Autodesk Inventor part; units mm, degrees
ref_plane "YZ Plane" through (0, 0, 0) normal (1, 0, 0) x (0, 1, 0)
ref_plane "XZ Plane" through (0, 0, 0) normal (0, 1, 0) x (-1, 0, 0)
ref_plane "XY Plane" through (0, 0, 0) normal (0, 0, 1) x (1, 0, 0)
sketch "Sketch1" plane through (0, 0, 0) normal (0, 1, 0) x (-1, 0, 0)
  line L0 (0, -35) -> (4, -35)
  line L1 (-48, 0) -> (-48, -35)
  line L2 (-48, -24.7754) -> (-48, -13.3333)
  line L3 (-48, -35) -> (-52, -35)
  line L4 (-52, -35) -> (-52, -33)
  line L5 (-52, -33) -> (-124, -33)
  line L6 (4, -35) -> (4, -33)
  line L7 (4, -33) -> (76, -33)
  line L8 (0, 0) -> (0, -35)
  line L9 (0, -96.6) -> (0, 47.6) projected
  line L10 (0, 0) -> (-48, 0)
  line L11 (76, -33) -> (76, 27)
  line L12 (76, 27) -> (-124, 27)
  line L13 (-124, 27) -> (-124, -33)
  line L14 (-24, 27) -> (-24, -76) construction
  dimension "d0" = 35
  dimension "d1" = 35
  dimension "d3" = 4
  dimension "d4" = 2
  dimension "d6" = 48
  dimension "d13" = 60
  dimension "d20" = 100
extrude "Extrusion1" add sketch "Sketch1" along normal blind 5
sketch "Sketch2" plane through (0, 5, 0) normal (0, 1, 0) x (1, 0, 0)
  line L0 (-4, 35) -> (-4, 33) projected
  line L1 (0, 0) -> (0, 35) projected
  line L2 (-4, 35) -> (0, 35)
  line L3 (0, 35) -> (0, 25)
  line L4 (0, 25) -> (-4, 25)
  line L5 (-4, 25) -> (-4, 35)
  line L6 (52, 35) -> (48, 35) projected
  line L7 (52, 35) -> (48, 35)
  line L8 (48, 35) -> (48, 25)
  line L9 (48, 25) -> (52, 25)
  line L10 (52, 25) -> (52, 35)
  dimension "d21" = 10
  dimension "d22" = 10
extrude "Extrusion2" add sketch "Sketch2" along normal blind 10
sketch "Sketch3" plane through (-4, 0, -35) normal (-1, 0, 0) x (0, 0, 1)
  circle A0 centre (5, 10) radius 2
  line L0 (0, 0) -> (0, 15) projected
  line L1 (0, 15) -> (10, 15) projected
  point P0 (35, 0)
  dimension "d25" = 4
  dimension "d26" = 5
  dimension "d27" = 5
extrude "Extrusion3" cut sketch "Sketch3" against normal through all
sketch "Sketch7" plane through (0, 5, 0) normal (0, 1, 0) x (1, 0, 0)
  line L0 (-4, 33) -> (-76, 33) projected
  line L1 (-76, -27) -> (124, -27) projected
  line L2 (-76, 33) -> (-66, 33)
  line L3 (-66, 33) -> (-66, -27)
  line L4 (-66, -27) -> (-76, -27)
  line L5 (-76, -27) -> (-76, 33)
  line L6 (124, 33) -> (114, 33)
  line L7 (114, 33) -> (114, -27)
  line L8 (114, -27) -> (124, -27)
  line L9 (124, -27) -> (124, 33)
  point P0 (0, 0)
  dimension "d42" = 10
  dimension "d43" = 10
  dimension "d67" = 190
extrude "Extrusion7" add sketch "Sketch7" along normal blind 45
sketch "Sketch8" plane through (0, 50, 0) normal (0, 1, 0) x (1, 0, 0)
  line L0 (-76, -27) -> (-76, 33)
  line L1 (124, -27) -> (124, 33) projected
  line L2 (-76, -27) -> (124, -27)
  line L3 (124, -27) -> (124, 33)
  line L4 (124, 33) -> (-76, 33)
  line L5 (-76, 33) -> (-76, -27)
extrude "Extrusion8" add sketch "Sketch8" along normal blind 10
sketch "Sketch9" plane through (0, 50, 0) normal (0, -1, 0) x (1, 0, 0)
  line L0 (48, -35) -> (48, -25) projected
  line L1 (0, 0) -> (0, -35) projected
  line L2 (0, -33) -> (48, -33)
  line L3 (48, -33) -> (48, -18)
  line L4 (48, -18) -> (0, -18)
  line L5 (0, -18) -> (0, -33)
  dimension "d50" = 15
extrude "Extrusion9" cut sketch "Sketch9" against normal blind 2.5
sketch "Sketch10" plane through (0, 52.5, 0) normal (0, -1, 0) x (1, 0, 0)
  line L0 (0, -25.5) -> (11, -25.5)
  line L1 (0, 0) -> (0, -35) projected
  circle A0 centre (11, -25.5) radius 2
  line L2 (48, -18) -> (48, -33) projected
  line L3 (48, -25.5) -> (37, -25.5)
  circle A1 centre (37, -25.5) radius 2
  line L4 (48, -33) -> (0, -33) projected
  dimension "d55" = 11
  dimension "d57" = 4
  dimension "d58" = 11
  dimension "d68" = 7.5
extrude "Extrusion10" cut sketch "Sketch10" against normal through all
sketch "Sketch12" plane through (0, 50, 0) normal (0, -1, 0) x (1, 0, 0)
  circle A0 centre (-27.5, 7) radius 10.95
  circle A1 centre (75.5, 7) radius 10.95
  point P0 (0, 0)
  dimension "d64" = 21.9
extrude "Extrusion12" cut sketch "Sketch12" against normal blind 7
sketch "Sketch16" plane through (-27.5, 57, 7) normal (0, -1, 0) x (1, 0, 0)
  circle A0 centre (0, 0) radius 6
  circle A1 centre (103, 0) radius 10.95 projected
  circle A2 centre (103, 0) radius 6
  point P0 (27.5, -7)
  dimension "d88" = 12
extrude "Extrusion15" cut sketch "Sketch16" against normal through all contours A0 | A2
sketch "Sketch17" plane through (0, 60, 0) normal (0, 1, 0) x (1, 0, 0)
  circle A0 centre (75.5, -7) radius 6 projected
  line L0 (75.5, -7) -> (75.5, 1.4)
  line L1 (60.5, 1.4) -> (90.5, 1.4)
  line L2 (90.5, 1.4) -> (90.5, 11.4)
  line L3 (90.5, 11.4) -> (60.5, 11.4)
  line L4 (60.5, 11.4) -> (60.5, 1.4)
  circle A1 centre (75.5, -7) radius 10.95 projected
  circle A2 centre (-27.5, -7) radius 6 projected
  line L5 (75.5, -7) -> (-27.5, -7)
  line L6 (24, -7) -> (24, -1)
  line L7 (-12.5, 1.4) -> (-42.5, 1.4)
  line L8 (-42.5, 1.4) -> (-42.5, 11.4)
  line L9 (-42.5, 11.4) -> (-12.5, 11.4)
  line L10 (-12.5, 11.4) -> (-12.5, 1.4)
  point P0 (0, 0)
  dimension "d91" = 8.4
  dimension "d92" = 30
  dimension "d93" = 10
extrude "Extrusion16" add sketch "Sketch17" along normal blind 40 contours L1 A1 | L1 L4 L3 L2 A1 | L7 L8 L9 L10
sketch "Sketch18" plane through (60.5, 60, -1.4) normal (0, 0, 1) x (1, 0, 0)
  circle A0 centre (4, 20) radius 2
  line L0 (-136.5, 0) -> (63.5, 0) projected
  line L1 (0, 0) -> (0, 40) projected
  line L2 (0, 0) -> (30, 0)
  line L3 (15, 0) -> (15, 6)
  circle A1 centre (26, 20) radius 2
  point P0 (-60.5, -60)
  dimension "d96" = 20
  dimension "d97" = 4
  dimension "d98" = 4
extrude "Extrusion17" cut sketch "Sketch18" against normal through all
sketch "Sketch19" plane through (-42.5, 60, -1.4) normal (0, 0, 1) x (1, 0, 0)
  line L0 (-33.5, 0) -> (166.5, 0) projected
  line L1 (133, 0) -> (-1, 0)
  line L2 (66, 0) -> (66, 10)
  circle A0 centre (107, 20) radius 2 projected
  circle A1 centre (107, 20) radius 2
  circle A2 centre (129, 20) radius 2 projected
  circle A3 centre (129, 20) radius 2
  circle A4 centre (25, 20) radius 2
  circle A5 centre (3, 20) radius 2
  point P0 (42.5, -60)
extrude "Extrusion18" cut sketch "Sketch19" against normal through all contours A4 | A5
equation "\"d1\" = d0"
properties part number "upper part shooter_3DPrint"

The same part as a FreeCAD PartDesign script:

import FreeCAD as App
import Part
import Sketcher
from FreeCAD import Vector


def add_polygon(sketch, points):
    """Adds a closed chain of lines whose ends are joined by coincident constraints."""
    first, n = sketch.GeometryCount, len(points)
    for a, b in zip(points, points[1:] + points[:1]):
        sketch.addGeometry(Part.LineSegment(App.Vector(*a, 0), App.Vector(*b, 0)), False)
    for i in range(n):
        sketch.addConstraint(Sketcher.Constraint("Coincident", first + i, 2, first + (i + 1) % n, 1))

doc = App.newDocument("Part")
body = doc.addObject("PartDesign::Body", "Body")

# Sketch on XZ plane
sketch1 = doc.addObject("Sketcher::SketchObject", "Sketch")
body.addObject(sketch1)
sketch1.AttachmentSupport = (doc.XZ_Plane, [""])
sketch1.MapMode = "FlatFace"
add_polygon(sketch1, [(0, 0), (0, -35), (-4, -35), (-4, -33), (-76, -33), (-76, 27), (124, 27), (124, -33), (52, -33), (52, -35), (48, -35), (48, 0)])  # lines 0-11
sketch1.addConstraint(Sketcher.Constraint("Vertical", 0))
sketch1.addConstraint(Sketcher.Constraint("Horizontal", 1))
sketch1.addConstraint(Sketcher.Constraint("Vertical", 2))
sketch1.addConstraint(Sketcher.Constraint("Horizontal", 3))
sketch1.addConstraint(Sketcher.Constraint("Vertical", 4))
sketch1.addConstraint(Sketcher.Constraint("Horizontal", 5))
sketch1.addConstraint(Sketcher.Constraint("Vertical", 6))
sketch1.addConstraint(Sketcher.Constraint("Horizontal", 7))
sketch1.addConstraint(Sketcher.Constraint("Vertical", 8))
sketch1.addConstraint(Sketcher.Constraint("Horizontal", 9))
sketch1.addConstraint(Sketcher.Constraint("Vertical", 10))
sketch1.addConstraint(Sketcher.Constraint("Horizontal", 11))
sketch1.addConstraint(Sketcher.Constraint("Coincident", 11, 2, -1, 1))
sketch1.addConstraint(Sketcher.Constraint("Horizontal", 3, 2, 6, 2))
sketch1.addConstraint(Sketcher.Constraint("Horizontal", 1, 2, 8, 2))
sketch1.addConstraint(Sketcher.Constraint("Equal", 3, 7))
sketch1.addConstraint(Sketcher.Constraint("Equal", 1, 9))
sketch1.addConstraint(Sketcher.Constraint("DistanceX", 1, 2, 1, 1, 4.0))
sketch1.addConstraint(Sketcher.Constraint("DistanceX", 11, 2, 11, 1, 48.0))
sketch1.addConstraint(Sketcher.Constraint("DistanceY", 0, 2, 0, 1, 35.0))
sketch1.addConstraint(Sketcher.Constraint("DistanceY", 2, 1, 2, 2, 2.0))
sketch1.addConstraint(Sketcher.Constraint("DistanceY", 4, 1, 4, 2, 60.0))
sketch1.addConstraint(Sketcher.Constraint("DistanceX", 3, 2, 3, 1, 72.0))
pad1 = doc.addObject("PartDesign::Pad", "Pad")
body.addObject(pad1)
pad1.Profile = sketch1
pad1.Length = 5
pad1.Reversed = True

# Sketch on XZ plane
sketch2 = doc.addObject("Sketcher::SketchObject", "Sketch001")
body.addObject(sketch2)
sketch2.AttachmentSupport = (doc.XZ_Plane, [""])
sketch2.MapMode = "FlatFace"
sketch2.AttachmentOffset = App.Placement(Vector(0, 0, -5), App.Rotation())
add_polygon(sketch2, [(0, -35), (-4, -35), (-4, -25), (0, -25)])  # lines 0-3
add_polygon(sketch2, [(52, -25), (52, -35), (48, -35), (48, -25)])  # lines 4-7
sketch2.addConstraint(Sketcher.Constraint("Horizontal", 0))
sketch2.addConstraint(Sketcher.Constraint("Vertical", 1))
sketch2.addConstraint(Sketcher.Constraint("Horizontal", 2))
sketch2.addConstraint(Sketcher.Constraint("Vertical", 3))
sketch2.addConstraint(Sketcher.Constraint("Vertical", 4))
sketch2.addConstraint(Sketcher.Constraint("Horizontal", 5))
sketch2.addConstraint(Sketcher.Constraint("Vertical", 6))
sketch2.addConstraint(Sketcher.Constraint("Horizontal", 7))
sketch2.addConstraint(Sketcher.Constraint("PointOnObject", 2, 2, -2))
sketch2.addConstraint(Sketcher.Constraint("Horizontal", 3, 2, 4, 2))
sketch2.addConstraint(Sketcher.Constraint("Horizontal", 2, 2, 6, 2))
sketch2.addConstraint(Sketcher.Constraint("Equal", 2, 5))
sketch2.addConstraint(Sketcher.Constraint("DistanceY", 1, 1, 1, 2, 10.0))
sketch2.addConstraint(Sketcher.Constraint("DistanceX", 0, 2, 0, 1, 4.0))
sketch2.addConstraint(Sketcher.Constraint("DistanceY", 0, 2, -1, 1, 35.0))
sketch2.addConstraint(Sketcher.Constraint("DistanceX", -1, 1, 4, 2, 52.0))
pad2 = doc.addObject("PartDesign::Pad", "Pad001")
body.addObject(pad2)
pad2.Profile = sketch2
pad2.Length = 10
pad2.Reversed = True

# Sketch on YZ plane
sketch3 = doc.addObject("Sketcher::SketchObject", "Sketch002")
body.addObject(sketch3)
sketch3.AttachmentSupport = (doc.YZ_Plane, [""])
sketch3.MapMode = "FlatFace"
sketch3.AttachmentOffset = App.Placement(Vector(0, 0, -4), App.Rotation())
sketch3.addGeometry(Part.Circle(Vector(10, -30, 0), Vector(0, 0, 1), 2), False)
sketch3.addConstraint(Sketcher.Constraint("Diameter", 0, 4.0))
sketch3.addConstraint(Sketcher.Constraint("DistanceX", -1, 1, 0, 3, 10.0))
sketch3.addConstraint(Sketcher.Constraint("DistanceY", 0, 3, -1, 1, 30.0))
pocket1 = doc.addObject("PartDesign::Pocket", "Pocket")
body.addObject(pocket1)
pocket1.Profile = sketch3
pocket1.Type = "ThroughAll"
pocket1.Reversed = True

# Sketch on XZ plane
sketch4 = doc.addObject("Sketcher::SketchObject", "Sketch003")
body.addObject(sketch4)
sketch4.AttachmentSupport = (doc.XZ_Plane, [""])
sketch4.MapMode = "FlatFace"
sketch4.AttachmentOffset = App.Placement(Vector(0, 0, -5), App.Rotation())
add_polygon(sketch4, [(-66, 27), (-66, -33), (-76, -33), (-76, 27)])  # lines 0-3
add_polygon(sketch4, [(114, -33), (114, 27), (124, 27), (124, -33)])  # lines 4-7
sketch4.addConstraint(Sketcher.Constraint("Vertical", 0))
sketch4.addConstraint(Sketcher.Constraint("Horizontal", 1))
sketch4.addConstraint(Sketcher.Constraint("Vertical", 2))
sketch4.addConstraint(Sketcher.Constraint("Horizontal", 3))
sketch4.addConstraint(Sketcher.Constraint("Vertical", 4))
sketch4.addConstraint(Sketcher.Constraint("Horizontal", 5))
sketch4.addConstraint(Sketcher.Constraint("Vertical", 6))
sketch4.addConstraint(Sketcher.Constraint("Horizontal", 7))
sketch4.addConstraint(Sketcher.Constraint("Horizontal", 3, 2, 4, 2))
sketch4.addConstraint(Sketcher.Constraint("Horizontal", 1, 2, 6, 2))
sketch4.addConstraint(Sketcher.Constraint("Equal", 3, 5))
sketch4.addConstraint(Sketcher.Constraint("DistanceX", 1, 2, 1, 1, 10.0))
sketch4.addConstraint(Sketcher.Constraint("DistanceX", 2, 2, 4, 2, 190.0))
sketch4.addConstraint(Sketcher.Constraint("DistanceY", 0, 2, 0, 1, 60.0))
sketch4.addConstraint(Sketcher.Constraint("DistanceX", 0, 2, -1, 1, 66.0))
sketch4.addConstraint(Sketcher.Constraint("DistanceY", 0, 2, -1, 1, 33.0))
pad3 = doc.addObject("PartDesign::Pad", "Pad002")
body.addObject(pad3)
pad3.Profile = sketch4
pad3.Length = 45
pad3.Reversed = True

# Sketch on XZ plane
sketch5 = doc.addObject("Sketcher::SketchObject", "Sketch004")
body.addObject(sketch5)
sketch5.AttachmentSupport = (doc.XZ_Plane, [""])
sketch5.MapMode = "FlatFace"
sketch5.AttachmentOffset = App.Placement(Vector(0, 0, -50), App.Rotation())
add_polygon(sketch5, [(-76, -33), (-76, 27), (124, 27), (124, -33)])  # lines 0-3
sketch5.addConstraint(Sketcher.Constraint("Vertical", 0))
sketch5.addConstraint(Sketcher.Constraint("Horizontal", 1))
sketch5.addConstraint(Sketcher.Constraint("Vertical", 2))
sketch5.addConstraint(Sketcher.Constraint("Horizontal", 3))
sketch5.addConstraint(Sketcher.Constraint("DistanceX", 1, 1, 1, 2, 200.0))
sketch5.addConstraint(Sketcher.Constraint("DistanceY", 0, 1, 0, 2, 60.0))
sketch5.addConstraint(Sketcher.Constraint("DistanceX", 0, 2, -1, 1, 76.0))
sketch5.addConstraint(Sketcher.Constraint("DistanceY", -1, 1, 0, 2, 27.0))
pad4 = doc.addObject("PartDesign::Pad", "Pad003")
body.addObject(pad4)
pad4.Profile = sketch5
pad4.Length = 10
pad4.Reversed = True

# Sketch on XZ plane
sketch6 = doc.addObject("Sketcher::SketchObject", "Sketch005")
body.addObject(sketch6)
sketch6.AttachmentSupport = (doc.XZ_Plane, [""])
sketch6.MapMode = "FlatFace"
sketch6.AttachmentOffset = App.Placement(Vector(0, 0, -50), App.Rotation())
add_polygon(sketch6, [(0, -33), (48, -33), (48, -18), (0, -18)])  # lines 0-3
sketch6.addConstraint(Sketcher.Constraint("Horizontal", 0))
sketch6.addConstraint(Sketcher.Constraint("Vertical", 1))
sketch6.addConstraint(Sketcher.Constraint("Horizontal", 2))
sketch6.addConstraint(Sketcher.Constraint("Vertical", 3))
sketch6.addConstraint(Sketcher.Constraint("PointOnObject", 2, 2, -2))
sketch6.addConstraint(Sketcher.Constraint("DistanceY", 1, 1, 1, 2, 15.0))
sketch6.addConstraint(Sketcher.Constraint("DistanceX", 0, 1, 0, 2, 48.0))
sketch6.addConstraint(Sketcher.Constraint("DistanceY", 0, 2, -1, 1, 33.0))
pocket2 = doc.addObject("PartDesign::Pocket", "Pocket001")
body.addObject(pocket2)
pocket2.Profile = sketch6
pocket2.Length = 2.5

# Sketch on XZ plane
sketch7 = doc.addObject("Sketcher::SketchObject", "Sketch006")
body.addObject(sketch7)
sketch7.AttachmentSupport = (doc.XZ_Plane, [""])
sketch7.MapMode = "FlatFace"
sketch7.AttachmentOffset = App.Placement(Vector(0, 0, -52.5), App.Rotation())
sketch7.addGeometry(Part.Circle(Vector(11, -25.5, 0), Vector(0, 0, 1), 2), False)
sketch7.addGeometry(Part.Circle(Vector(37, -25.5, 0), Vector(0, 0, 1), 2), False)
sketch7.addConstraint(Sketcher.Constraint("Equal", 0, 1))
sketch7.addConstraint(Sketcher.Constraint("Horizontal", 0, 3, 1, 3))
sketch7.addConstraint(Sketcher.Constraint("Diameter", 0, 4.0))
sketch7.addConstraint(Sketcher.Constraint("DistanceX", -1, 1, 0, 3, 11.0))
sketch7.addConstraint(Sketcher.Constraint("DistanceX", -1, 1, 1, 3, 37.0))
sketch7.addConstraint(Sketcher.Constraint("DistanceY", 0, 3, -1, 1, 25.5))
pocket3 = doc.addObject("PartDesign::Pocket", "Pocket002")
body.addObject(pocket3)
pocket3.Profile = sketch7
pocket3.Type = "ThroughAll"

# Sketch on XZ plane
sketch8 = doc.addObject("Sketcher::SketchObject", "Sketch007")
body.addObject(sketch8)
sketch8.AttachmentSupport = (doc.XZ_Plane, [""])
sketch8.MapMode = "FlatFace"
sketch8.AttachmentOffset = App.Placement(Vector(0, 0, -50), App.Rotation())
sketch8.addGeometry(Part.Circle(Vector(-27.5, 7, 0), Vector(0, 0, 1), 10.95), False)
sketch8.addGeometry(Part.Circle(Vector(75.5, 7, 0), Vector(0, 0, 1), 10.95), False)
sketch8.addConstraint(Sketcher.Constraint("Equal", 0, 1))
sketch8.addConstraint(Sketcher.Constraint("Horizontal", 0, 3, 1, 3))
sketch8.addConstraint(Sketcher.Constraint("Diameter", 0, 21.9))
sketch8.addConstraint(Sketcher.Constraint("DistanceY", -1, 1, 0, 3, 7.0))
sketch8.addConstraint(Sketcher.Constraint("DistanceX", 0, 3, 1, 3, 103.0))
sketch8.addConstraint(Sketcher.Constraint("DistanceX", 0, 3, -1, 1, 27.5))
pocket4 = doc.addObject("PartDesign::Pocket", "Pocket003")
body.addObject(pocket4)
pocket4.Profile = sketch8
pocket4.Length = 7

# Sketch on XZ plane
sketch9 = doc.addObject("Sketcher::SketchObject", "Sketch008")
body.addObject(sketch9)
sketch9.AttachmentSupport = (doc.XZ_Plane, [""])
sketch9.MapMode = "FlatFace"
sketch9.AttachmentOffset = App.Placement(Vector(0, 0, -57), App.Rotation())
sketch9.addGeometry(Part.Circle(Vector(-27.5, 7, 0), Vector(0, 0, 1), 6), False)
sketch9.addGeometry(Part.Circle(Vector(75.5, 7, 0), Vector(0, 0, 1), 6), False)
sketch9.addConstraint(Sketcher.Constraint("Equal", 0, 1))
sketch9.addConstraint(Sketcher.Constraint("Horizontal", 0, 3, 1, 3))
sketch9.addConstraint(Sketcher.Constraint("Diameter", 0, 12.0))
sketch9.addConstraint(Sketcher.Constraint("DistanceY", -1, 1, 0, 3, 7.0))
sketch9.addConstraint(Sketcher.Constraint("DistanceX", 0, 3, 1, 3, 103.0))
sketch9.addConstraint(Sketcher.Constraint("DistanceX", 0, 3, -1, 1, 27.5))
pocket5 = doc.addObject("PartDesign::Pocket", "Pocket004")
body.addObject(pocket5)
pocket5.Profile = sketch9
pocket5.Type = "ThroughAll"

# Sketch on XZ plane
sketch10 = doc.addObject("Sketcher::SketchObject", "Sketch009")
body.addObject(sketch10)
sketch10.AttachmentSupport = (doc.XZ_Plane, [""])
sketch10.MapMode = "FlatFace"
sketch10.AttachmentOffset = App.Placement(Vector(0, 0, -60), App.Rotation())
add_polygon(sketch10, [(90.5, -1.4), (90.5, -11.4), (60.5, -11.4), (60.5, -1.4)])  # lines 0-3
add_polygon(sketch10, [(-42.5, -1.4), (-12.5, -1.4), (-12.5, -11.4), (-42.5, -11.4)])  # lines 4-7
sketch10.addConstraint(Sketcher.Constraint("Vertical", 0))
sketch10.addConstraint(Sketcher.Constraint("Horizontal", 1))
sketch10.addConstraint(Sketcher.Constraint("Vertical", 2))
sketch10.addConstraint(Sketcher.Constraint("Horizontal", 3))
sketch10.addConstraint(Sketcher.Constraint("Horizontal", 4))
sketch10.addConstraint(Sketcher.Constraint("Vertical", 5))
sketch10.addConstraint(Sketcher.Constraint("Horizontal", 6))
sketch10.addConstraint(Sketcher.Constraint("Vertical", 7))
sketch10.addConstraint(Sketcher.Constraint("Horizontal", 3, 2, 4, 2))
sketch10.addConstraint(Sketcher.Constraint("Horizontal", 1, 2, 5, 2))
sketch10.addConstraint(Sketcher.Constraint("Equal", 3, 4))
sketch10.addConstraint(Sketcher.Constraint("DistanceX", 1, 2, 1, 1, 30.0))
sketch10.addConstraint(Sketcher.Constraint("DistanceY", 0, 2, 0, 1, 10.0))
sketch10.addConstraint(Sketcher.Constraint("DistanceX", 4, 2, 2, 2, 73.0))
sketch10.addConstraint(Sketcher.Constraint("DistanceX", -1, 1, 0, 2, 90.5))
sketch10.addConstraint(Sketcher.Constraint("DistanceY", 0, 2, -1, 1, 11.4))
pad5 = doc.addObject("PartDesign::Pad", "Pad004")
body.addObject(pad5)
pad5.Profile = sketch10
pad5.Length = 40
pad5.Reversed = True

# Sketch on XY plane
sketch11 = doc.addObject("Sketcher::SketchObject", "Sketch010")
body.addObject(sketch11)
sketch11.AttachmentSupport = (doc.XY_Plane, [""])
sketch11.MapMode = "FlatFace"
sketch11.AttachmentOffset = App.Placement(Vector(0, 0, -1.4), App.Rotation())
sketch11.addGeometry(Part.Circle(Vector(64.5, 80, 0), Vector(0, 0, 1), 2), False)
sketch11.addGeometry(Part.Circle(Vector(86.5, 80, 0), Vector(0, 0, 1), 2), False)
sketch11.addConstraint(Sketcher.Constraint("Equal", 0, 1))
sketch11.addConstraint(Sketcher.Constraint("Horizontal", 0, 3, 1, 3))
sketch11.addConstraint(Sketcher.Constraint("Diameter", 0, 4.0))
sketch11.addConstraint(Sketcher.Constraint("DistanceY", -1, 1, 0, 3, 80.0))
sketch11.addConstraint(Sketcher.Constraint("DistanceX", 0, 3, 1, 3, 22.0))
sketch11.addConstraint(Sketcher.Constraint("DistanceX", -1, 1, 0, 3, 64.5))
pocket6 = doc.addObject("PartDesign::Pocket", "Pocket005")
body.addObject(pocket6)
pocket6.Profile = sketch11
pocket6.Type = "ThroughAll"

# Sketch on XY plane
sketch12 = doc.addObject("Sketcher::SketchObject", "Sketch011")
body.addObject(sketch12)
sketch12.AttachmentSupport = (doc.XY_Plane, [""])
sketch12.MapMode = "FlatFace"
sketch12.AttachmentOffset = App.Placement(Vector(0, 0, -1.4), App.Rotation())
sketch12.addGeometry(Part.Circle(Vector(-17.5, 80, 0), Vector(0, 0, 1), 2), False)
sketch12.addGeometry(Part.Circle(Vector(-39.5, 80, 0), Vector(0, 0, 1), 2), False)
sketch12.addConstraint(Sketcher.Constraint("Equal", 0, 1))
sketch12.addConstraint(Sketcher.Constraint("Horizontal", 0, 3, 1, 3))
sketch12.addConstraint(Sketcher.Constraint("Diameter", 0, 4.0))
sketch12.addConstraint(Sketcher.Constraint("DistanceY", -1, 1, 0, 3, 80.0))
sketch12.addConstraint(Sketcher.Constraint("DistanceX", 1, 3, 0, 3, 22.0))
sketch12.addConstraint(Sketcher.Constraint("DistanceX", 0, 3, -1, 1, 17.5))
pocket7 = doc.addObject("PartDesign::Pocket", "Pocket006")
body.addObject(pocket7)
pocket7.Profile = sketch12
pocket7.Type = "ThroughAll"

doc.recompute()
